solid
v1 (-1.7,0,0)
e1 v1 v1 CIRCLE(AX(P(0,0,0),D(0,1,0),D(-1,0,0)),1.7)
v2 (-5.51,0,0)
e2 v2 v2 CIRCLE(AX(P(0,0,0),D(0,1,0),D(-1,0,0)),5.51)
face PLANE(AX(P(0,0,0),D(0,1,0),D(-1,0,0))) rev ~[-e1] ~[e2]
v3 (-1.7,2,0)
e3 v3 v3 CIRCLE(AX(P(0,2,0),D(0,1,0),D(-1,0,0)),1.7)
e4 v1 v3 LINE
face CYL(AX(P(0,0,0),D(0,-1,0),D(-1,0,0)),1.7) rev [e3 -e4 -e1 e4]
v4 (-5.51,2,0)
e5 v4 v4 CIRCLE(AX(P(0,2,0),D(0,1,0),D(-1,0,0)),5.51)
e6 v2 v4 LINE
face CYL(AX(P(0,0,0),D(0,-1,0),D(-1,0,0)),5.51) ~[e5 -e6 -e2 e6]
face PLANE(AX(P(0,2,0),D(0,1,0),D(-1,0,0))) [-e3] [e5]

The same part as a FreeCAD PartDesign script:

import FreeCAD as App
import Part
import Sketcher
from FreeCAD import Vector

doc = App.newDocument("Part")
body = doc.addObject("PartDesign::Body", "Body")

sketch1 = body.newObject("Sketcher::SketchObject", "Sketch")
sketch1.AttachmentSupport = (doc.getObject("XZ_Plane"), [""])
sketch1.MapMode = "FlatFace"
sketch1.addGeometry([
    Part.Circle(Vector(0, 0, 0), Vector(0, 0, 1), 5.5),
    Part.Circle(Vector(0, 0, 0), Vector(0, 0, 1), 1.7),
], False)
sketch1.addConstraint([
    Sketcher.Constraint("Coincident", 0, 3, -1, 1),
    Sketcher.Constraint("Coincident", 1, 3, -1, 1),
    Sketcher.Constraint("Diameter", 1, 3.4),
    Sketcher.Constraint("Diameter", 0, 11.02),
])
pad1 = body.newObject("PartDesign::Pad", "Pad")
pad1.Profile = sketch1
pad1.Length = 2
pad1.Reversed = True

doc.recompute()
